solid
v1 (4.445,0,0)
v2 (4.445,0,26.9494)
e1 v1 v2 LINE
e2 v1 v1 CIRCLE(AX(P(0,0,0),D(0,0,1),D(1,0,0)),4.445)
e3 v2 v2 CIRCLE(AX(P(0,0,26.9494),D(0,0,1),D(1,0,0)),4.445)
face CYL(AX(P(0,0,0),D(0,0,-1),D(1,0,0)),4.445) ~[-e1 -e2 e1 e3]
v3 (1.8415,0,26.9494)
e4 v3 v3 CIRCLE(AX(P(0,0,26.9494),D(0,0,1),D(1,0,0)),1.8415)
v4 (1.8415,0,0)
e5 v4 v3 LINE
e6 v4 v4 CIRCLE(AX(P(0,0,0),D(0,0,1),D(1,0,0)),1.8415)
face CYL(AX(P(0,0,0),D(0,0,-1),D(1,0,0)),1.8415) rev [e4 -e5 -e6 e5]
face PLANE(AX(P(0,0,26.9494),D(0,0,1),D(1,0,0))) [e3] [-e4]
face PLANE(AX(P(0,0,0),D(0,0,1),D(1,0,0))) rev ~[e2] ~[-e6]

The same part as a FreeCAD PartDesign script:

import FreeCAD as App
import Part
import Sketcher
Q = App.Units.Quantity

doc = App.newDocument("Part")
body = doc.addObject("PartDesign::Body", "Body")

# Sketch on XY plane
sketch1 = body.newObject("Sketcher::SketchObject", "Sketch")
sketch1.AttachmentSupport = (doc.getObject("XY_Plane"), [""])
sketch1.MapMode = "FlatFace"
sketch1.addGeometry(Part.Circle(App.Vector(0, 0, 0), App.Vector(0, 0, 1), 4.445), False)
sketch1.addGeometry(Part.Circle(App.Vector(0, 0, 0), App.Vector(0, 0, 1), 1.8415), False)
sketch1.addConstraint(Sketcher.Constraint("Coincident", 0, 3, -1, 1))
sketch1.addConstraint(Sketcher.Constraint("Coincident", 1, 3, -1, 1))
sketch1.addConstraint(Sketcher.Constraint("Diameter", 0, Q("0.35 in")))
sketch1.addConstraint(Sketcher.Constraint("Diameter", 1, Q("0.145 in")))
pad1 = body.newObject("PartDesign::Pad", "Pad")
pad1.Profile = sketch1
pad1.Length = Q("1.061 in")

doc.recompute()
